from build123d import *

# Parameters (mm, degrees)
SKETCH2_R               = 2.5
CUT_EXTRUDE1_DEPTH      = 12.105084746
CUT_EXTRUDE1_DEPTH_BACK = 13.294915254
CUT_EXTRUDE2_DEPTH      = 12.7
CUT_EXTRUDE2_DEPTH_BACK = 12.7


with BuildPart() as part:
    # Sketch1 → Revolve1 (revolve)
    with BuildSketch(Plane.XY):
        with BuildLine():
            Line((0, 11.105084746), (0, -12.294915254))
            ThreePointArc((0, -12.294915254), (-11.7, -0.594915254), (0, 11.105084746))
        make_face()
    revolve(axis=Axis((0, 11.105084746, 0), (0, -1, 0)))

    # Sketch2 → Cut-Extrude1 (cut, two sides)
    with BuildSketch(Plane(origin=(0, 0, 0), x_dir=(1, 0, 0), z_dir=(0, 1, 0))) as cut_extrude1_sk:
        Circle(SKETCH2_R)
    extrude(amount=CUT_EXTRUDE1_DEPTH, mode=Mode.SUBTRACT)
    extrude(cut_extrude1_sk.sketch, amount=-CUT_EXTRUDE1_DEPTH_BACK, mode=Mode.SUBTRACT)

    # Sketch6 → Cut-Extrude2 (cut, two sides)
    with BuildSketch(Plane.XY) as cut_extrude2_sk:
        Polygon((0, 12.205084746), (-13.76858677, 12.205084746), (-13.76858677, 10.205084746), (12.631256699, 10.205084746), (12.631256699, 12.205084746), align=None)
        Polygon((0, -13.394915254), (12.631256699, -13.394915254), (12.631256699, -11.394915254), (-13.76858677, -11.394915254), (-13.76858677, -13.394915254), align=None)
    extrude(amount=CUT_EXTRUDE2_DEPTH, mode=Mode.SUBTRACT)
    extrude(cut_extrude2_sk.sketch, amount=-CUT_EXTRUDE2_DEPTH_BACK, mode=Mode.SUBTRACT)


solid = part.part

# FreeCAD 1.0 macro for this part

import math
import FreeCAD as App
import Part
import Sketcher
from FreeCAD import Vector
Q = App.Units.Quantity

doc = App.newDocument("Part")
body = doc.addObject("PartDesign::Body", "Body")

sketch1 = doc.addObject("Sketcher::SketchObject", "Sketch")
body.addObject(sketch1)
sketch1.AttachmentSupport = (doc.XY_Plane, [""])
sketch1.MapMode = "FlatFace"
sketch1.addGeometry(Part.LineSegment(Vector(0, -12, 0), Vector(0, 11, 0)), False)
sketch1.addGeometry(Part.ArcOfCircle(Part.Circle(Vector(0, -1, 0), Vector(0, 0, 1), 12), math.radians(90), math.radians(270)), False)
sketch1.addConstraint(Sketcher.Constraint("Coincident", 0, 1, 1, 2))
sketch1.addConstraint(Sketcher.Constraint("Coincident", 1, 1, 0, 2))
sketch1.addConstraint(Sketcher.Constraint("Vertical", 0))
sketch1.addConstraint(Sketcher.Constraint("PointOnObject", 1, 3, -2))
sketch1.addConstraint(Sketcher.Constraint("PointOnObject", 0, 1, -2))
sketch1.addConstraint(Sketcher.Constraint("Radius", 1, Q("11.7 mm")))
sketch1.addConstraint(Sketcher.Constraint("DistanceY", 1, 3, -1, 1, Q("0.594915 mm")))
revolution = doc.addObject("PartDesign::Revolution", "Revolution")
body.addObject(revolution)
revolution.Profile = sketch1
revolution.ReferenceAxis = (sketch1, ["V_Axis"])
revolution.Angle = 360

sketch2 = doc.addObject("Sketcher::SketchObject", "Sketch001")
body.addObject(sketch2)
sketch2.AttachmentSupport = (doc.XZ_Plane, [""])
sketch2.MapMode = "FlatFace"
sketch2.addGeometry(Part.Circle(Vector(0, 0, 0), Vector(0, 0, 1), 2.5), False)
sketch2.addConstraint(Sketcher.Constraint("Coincident", 0, 3, -1, 1))
sketch2.addConstraint(Sketcher.Constraint("Diameter", 0, Q("5 mm")))
pocket1 = doc.addObject("PartDesign::Pocket", "Pocket")
body.addObject(pocket1)
pocket1.Profile = sketch2
pocket1.Type = "ThroughAll"
pocket1.Midplane = True

sketch3 = doc.addObject("Sketcher::SketchObject", "Sketch002")
body.addObject(sketch3)
sketch3.AttachmentSupport = (doc.XY_Plane, [""])
sketch3.MapMode = "FlatFace"
sketch3.addGeometry(Part.LineSegment(Vector(-13.8, 12.2, 0), Vector(-13.8, 10.2, 0)), False)
sketch3.addGeometry(Part.LineSegment(Vector(-13.8, 10.2, 0), Vector(12.6, 10.2, 0)), False)
sketch3.addGeometry(Part.LineSegment(Vector(12.6, 10.2, 0), Vector(12.6, 12.2, 0)), False)
sketch3.addGeometry(Part.LineSegment(Vector(12.6, 12.2, 0), Vector(-13.8, 12.2, 0)), False)
sketch3.addGeometry(Part.LineSegment(Vector(12.6, -13.4, 0), Vector(12.6, -11.4, 0)), False)
sketch3.addGeometry(Part.LineSegment(Vector(12.6, -11.4, 0), Vector(-13.8, -11.4, 0)), False)
sketch3.addGeometry(Part.LineSegment(Vector(-13.8, -11.4, 0), Vector(-13.8, -13.4, 0)), False)
sketch3.addGeometry(Part.LineSegment(Vector(-13.8, -13.4, 0), Vector(12.6, -13.4, 0)), False)
sketch3.addConstraint(Sketcher.Constraint("Coincident", 0, 2, 1, 1))
sketch3.addConstraint(Sketcher.Constraint("Coincident", 1, 2, 2, 1))
sketch3.addConstraint(Sketcher.Constraint("Coincident", 2, 2, 3, 1))
sketch3.addConstraint(Sketcher.Constraint("Coincident", 3, 2, 0, 1))
sketch3.addConstraint(Sketcher.Constraint("Coincident", 4, 2, 5, 1))
sketch3.addConstraint(Sketcher.Constraint("Coincident", 5, 2, 6, 1))
sketch3.addConstraint(Sketcher.Constraint("Coincident", 6, 2, 7, 1))
sketch3.addConstraint(Sketcher.Constraint("Coincident", 7, 2, 4, 1))
sketch3.addConstraint(Sketcher.Constraint("Vertical", 0))
sketch3.addConstraint(Sketcher.Constraint("Horizontal", 1))
sketch3.addConstraint(Sketcher.Constraint("Vertical", 2))
sketch3.addConstraint(Sketcher.Constraint("Horizontal", 3))
sketch3.addConstraint(Sketcher.Constraint("Vertical", 4))
sketch3.addConstraint(Sketcher.Constraint("Horizontal", 5))
sketch3.addConstraint(Sketcher.Constraint("Vertical", 6))
sketch3.addConstraint(Sketcher.Constraint("Horizontal", 7))
sketch3.addConstraint(Sketcher.Constraint("Vertical", 2, 2, 4, 2))
sketch3.addConstraint(Sketcher.Constraint("Vertical", 3, 2, 5, 2))
sketch3.addConstraint(Sketcher.Constraint("Equal", 2, 4))
sketch3.addConstraint(Sketcher.Constraint("DistanceY", 0, 2, 0, 1, Q("2 mm")))
sketch3.addConstraint(Sketcher.Constraint("DistanceY", 4, 2, 1, 2, Q("21.6 mm")))
sketch3.addConstraint(Sketcher.Constraint("DistanceX", 1, 1, 1, 2, Q("26.399843 mm")))
sketch3.addConstraint(Sketcher.Constraint("DistanceX", 0, 2, -1, 1, Q("13.768587 mm")))
sketch3.addConstraint(Sketcher.Constraint("DistanceY", -1, 1, 0, 2, Q("10.205085 mm")))
pocket2 = doc.addObject("PartDesign::Pocket", "Pocket001")
body.addObject(pocket2)
pocket2.Profile = sketch3
pocket2.Type = "ThroughAll"
pocket2.Midplane = True

doc.recompute()
